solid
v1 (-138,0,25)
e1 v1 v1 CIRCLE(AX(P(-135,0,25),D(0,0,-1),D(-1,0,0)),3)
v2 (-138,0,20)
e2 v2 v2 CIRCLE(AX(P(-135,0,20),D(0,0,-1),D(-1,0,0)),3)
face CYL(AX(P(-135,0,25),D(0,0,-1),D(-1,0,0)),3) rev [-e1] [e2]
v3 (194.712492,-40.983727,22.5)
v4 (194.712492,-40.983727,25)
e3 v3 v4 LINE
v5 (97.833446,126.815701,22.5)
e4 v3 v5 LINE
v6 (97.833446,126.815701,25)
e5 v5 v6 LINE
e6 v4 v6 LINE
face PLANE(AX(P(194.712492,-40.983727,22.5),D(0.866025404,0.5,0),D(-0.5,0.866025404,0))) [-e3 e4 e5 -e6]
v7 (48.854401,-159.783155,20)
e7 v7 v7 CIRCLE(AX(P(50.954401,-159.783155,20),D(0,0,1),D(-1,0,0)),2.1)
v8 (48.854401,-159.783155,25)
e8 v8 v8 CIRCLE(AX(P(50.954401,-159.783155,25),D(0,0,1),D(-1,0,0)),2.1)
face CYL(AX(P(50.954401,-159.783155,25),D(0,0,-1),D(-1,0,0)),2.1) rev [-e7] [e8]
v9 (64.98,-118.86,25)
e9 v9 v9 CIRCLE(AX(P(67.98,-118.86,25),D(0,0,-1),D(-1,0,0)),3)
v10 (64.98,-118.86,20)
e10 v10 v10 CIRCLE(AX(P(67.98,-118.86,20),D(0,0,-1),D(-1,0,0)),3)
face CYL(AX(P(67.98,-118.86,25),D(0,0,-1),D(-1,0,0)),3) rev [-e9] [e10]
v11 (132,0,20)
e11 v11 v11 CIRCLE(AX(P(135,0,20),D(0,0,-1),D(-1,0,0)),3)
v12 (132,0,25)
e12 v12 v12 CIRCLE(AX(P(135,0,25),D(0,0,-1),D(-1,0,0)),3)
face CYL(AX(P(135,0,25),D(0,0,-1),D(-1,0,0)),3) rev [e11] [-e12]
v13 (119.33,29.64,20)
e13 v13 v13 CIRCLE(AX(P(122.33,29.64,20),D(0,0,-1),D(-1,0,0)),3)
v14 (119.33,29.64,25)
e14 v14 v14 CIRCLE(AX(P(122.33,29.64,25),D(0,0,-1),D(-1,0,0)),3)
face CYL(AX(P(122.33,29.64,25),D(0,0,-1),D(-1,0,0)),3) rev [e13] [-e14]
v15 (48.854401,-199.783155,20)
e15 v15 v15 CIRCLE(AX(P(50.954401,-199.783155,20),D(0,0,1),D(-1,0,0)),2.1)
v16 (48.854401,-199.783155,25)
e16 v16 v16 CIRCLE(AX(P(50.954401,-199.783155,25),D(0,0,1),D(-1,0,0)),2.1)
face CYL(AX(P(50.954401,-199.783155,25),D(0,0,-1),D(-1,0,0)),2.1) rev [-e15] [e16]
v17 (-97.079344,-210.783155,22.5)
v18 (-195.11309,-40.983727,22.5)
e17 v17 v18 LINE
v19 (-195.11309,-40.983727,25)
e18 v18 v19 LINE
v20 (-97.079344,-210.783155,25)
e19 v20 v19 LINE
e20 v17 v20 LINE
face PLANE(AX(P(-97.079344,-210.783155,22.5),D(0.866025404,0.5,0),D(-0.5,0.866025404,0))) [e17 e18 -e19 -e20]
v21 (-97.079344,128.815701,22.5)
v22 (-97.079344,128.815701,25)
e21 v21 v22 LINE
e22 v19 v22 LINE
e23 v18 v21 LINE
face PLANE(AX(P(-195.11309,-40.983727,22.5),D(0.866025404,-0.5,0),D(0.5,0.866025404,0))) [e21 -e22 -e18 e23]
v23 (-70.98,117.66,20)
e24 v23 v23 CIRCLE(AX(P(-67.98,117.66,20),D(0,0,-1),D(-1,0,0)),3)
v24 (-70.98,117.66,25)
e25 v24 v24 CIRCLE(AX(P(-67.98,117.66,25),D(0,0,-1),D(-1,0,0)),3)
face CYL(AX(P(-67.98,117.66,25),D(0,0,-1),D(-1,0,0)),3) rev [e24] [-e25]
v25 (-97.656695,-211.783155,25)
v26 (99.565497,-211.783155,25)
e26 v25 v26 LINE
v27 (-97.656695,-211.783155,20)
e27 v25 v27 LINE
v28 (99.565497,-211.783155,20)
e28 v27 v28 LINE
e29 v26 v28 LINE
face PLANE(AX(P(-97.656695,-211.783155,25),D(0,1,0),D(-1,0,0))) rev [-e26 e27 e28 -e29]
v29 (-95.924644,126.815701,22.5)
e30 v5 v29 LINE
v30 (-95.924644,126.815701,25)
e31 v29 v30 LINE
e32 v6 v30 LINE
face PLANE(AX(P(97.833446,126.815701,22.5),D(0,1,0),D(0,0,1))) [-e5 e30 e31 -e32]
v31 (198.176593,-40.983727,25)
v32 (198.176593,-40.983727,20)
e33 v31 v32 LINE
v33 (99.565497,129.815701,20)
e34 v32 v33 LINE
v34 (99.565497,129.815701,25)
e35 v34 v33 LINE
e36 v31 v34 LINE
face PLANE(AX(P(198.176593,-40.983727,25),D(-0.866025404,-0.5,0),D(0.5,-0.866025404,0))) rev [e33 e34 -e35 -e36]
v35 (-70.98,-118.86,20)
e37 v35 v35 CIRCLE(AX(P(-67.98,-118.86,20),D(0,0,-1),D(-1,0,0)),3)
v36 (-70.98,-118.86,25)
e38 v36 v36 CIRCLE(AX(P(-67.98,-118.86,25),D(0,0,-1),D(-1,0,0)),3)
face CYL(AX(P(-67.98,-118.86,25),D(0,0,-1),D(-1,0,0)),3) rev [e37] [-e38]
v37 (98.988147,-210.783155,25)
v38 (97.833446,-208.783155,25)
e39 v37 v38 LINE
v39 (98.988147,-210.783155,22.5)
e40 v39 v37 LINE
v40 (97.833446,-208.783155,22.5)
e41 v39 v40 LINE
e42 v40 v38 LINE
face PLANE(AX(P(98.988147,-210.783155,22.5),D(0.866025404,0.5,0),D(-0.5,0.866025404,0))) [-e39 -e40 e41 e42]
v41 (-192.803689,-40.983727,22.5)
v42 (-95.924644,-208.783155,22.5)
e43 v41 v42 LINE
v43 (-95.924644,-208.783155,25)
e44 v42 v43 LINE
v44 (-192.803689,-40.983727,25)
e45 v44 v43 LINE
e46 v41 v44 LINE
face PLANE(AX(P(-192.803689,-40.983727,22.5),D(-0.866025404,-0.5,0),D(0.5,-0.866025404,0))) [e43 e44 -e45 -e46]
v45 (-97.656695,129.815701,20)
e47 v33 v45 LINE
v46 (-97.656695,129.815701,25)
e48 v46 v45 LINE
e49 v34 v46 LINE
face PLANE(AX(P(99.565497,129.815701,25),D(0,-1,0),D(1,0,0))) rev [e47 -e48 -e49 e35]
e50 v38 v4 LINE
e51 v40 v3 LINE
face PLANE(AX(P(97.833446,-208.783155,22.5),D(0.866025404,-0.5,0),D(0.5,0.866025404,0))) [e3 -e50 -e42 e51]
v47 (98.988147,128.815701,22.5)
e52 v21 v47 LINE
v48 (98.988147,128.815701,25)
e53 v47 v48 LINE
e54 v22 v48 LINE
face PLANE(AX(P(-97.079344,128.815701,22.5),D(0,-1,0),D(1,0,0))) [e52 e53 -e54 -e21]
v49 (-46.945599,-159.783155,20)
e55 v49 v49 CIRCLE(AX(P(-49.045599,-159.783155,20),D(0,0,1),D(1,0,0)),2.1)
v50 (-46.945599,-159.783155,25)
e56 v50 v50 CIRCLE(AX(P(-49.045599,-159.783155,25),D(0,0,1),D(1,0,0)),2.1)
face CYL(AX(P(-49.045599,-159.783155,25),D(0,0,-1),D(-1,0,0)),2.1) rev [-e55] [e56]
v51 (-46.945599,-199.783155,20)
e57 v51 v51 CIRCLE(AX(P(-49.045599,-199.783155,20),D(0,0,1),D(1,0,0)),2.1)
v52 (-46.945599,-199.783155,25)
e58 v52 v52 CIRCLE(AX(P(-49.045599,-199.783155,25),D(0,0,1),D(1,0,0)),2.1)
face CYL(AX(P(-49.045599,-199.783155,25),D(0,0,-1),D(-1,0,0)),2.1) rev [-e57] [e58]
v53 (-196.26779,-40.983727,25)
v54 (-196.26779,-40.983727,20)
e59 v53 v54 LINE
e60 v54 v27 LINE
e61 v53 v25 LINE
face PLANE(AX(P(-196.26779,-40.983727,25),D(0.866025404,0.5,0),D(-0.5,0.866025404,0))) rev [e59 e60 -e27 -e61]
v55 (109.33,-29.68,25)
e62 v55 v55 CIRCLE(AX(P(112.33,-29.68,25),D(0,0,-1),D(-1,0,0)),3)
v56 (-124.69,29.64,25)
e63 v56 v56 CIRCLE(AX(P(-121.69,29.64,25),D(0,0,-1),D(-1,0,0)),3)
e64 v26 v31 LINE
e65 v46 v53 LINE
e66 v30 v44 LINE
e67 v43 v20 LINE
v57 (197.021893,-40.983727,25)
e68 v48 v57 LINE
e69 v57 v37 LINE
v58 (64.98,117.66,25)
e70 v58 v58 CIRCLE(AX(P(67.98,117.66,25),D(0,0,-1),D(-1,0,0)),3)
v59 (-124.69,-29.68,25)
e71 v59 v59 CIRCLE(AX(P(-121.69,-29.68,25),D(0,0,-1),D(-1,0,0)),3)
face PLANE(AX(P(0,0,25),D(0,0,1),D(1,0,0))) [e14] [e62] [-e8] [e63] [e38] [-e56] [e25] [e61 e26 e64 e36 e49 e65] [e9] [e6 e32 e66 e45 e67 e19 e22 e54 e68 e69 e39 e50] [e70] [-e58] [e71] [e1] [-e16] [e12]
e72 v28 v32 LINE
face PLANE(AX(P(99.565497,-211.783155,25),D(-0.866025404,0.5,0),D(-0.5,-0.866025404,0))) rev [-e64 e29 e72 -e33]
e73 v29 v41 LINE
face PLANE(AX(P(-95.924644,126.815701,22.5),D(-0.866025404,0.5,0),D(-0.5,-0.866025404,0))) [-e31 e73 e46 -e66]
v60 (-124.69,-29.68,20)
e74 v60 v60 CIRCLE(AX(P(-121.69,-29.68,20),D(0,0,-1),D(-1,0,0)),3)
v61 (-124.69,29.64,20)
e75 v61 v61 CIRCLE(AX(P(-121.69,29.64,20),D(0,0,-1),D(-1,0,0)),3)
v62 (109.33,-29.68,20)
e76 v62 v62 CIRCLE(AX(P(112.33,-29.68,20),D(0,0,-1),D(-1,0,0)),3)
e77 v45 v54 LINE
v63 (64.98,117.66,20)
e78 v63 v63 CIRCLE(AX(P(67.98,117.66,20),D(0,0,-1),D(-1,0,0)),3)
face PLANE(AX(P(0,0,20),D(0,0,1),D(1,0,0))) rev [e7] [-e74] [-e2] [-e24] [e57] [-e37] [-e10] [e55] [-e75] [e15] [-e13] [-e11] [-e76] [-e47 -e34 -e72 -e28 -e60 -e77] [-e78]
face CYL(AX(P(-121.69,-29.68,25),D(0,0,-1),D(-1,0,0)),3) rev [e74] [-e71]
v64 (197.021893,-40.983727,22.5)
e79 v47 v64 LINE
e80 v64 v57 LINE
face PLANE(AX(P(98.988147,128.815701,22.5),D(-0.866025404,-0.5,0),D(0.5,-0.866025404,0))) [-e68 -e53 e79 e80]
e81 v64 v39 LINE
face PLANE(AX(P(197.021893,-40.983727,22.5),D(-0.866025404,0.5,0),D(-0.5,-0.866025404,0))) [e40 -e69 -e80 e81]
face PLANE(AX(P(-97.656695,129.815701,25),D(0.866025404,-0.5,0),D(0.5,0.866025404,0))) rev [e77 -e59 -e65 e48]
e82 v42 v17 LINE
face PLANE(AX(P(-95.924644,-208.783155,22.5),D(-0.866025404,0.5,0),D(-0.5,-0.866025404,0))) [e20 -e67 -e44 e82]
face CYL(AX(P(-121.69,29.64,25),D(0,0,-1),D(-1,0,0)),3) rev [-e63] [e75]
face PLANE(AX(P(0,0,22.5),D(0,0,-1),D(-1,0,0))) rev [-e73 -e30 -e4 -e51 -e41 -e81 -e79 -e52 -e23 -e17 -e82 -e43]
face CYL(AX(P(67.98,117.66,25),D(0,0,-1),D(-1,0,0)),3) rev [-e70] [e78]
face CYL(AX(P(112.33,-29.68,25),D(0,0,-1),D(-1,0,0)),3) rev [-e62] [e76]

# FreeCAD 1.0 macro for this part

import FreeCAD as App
import Part
import Sketcher
Q = App.Units.Quantity


def add_polygon(sketch, points):
    """Adds a closed chain of lines whose ends are joined by coincident constraints."""
    first, n = sketch.GeometryCount, len(points)
    for a, b in zip(points, points[1:] + points[:1]):
        sketch.addGeometry(Part.LineSegment(App.Vector(*a, 0), App.Vector(*b, 0)), False)
    for i in range(n):
        sketch.addConstraint(Sketcher.Constraint("Coincident", first + i, 2, first + (i + 1) % n, 1))

doc = App.newDocument("Part")
body = doc.addObject("PartDesign::Body", "Body")

sketch1 = doc.addObject("Sketcher::SketchObject", "Sketch")
body.addObject(sketch1)
sketch1.AttachmentSupport = (doc.XY_Plane, [""])
sketch1.MapMode = "FlatFace"
sketch1.AttachmentOffset = App.Placement(App.Vector(0, 0, 20), App.Rotation())
add_polygon(sketch1, [(198, -41), (100, 130), (-98, 130), (-196, -41), (-98, -212), (100, -212)])
sketch1.addConstraint(Sketcher.Constraint("Horizontal", 1))
sketch1.addConstraint(Sketcher.Constraint("Horizontal", 4))
sketch1.addConstraint(Sketcher.Constraint("Parallel", 0, 3))
sketch1.addConstraint(Sketcher.Constraint("Parallel", 2, 5))
sketch1.addConstraint(Sketcher.Constraint("Horizontal", 2, 2, 5, 2))
sketch1.addConstraint(Sketcher.Constraint("Vertical", 1, 2, 3, 2))
sketch1.addConstraint(Sketcher.Constraint("Vertical", 0, 2, 4, 2))
sketch1.addConstraint(Sketcher.Constraint("Angle", 0, Q("120 deg")))
sketch1.addConstraint(Sketcher.Constraint("DistanceX", 1, 2, 1, 1, 197.222192))
sketch1.addConstraint(Sketcher.Constraint("DistanceY", -1, 1, 0, 2, 129.815701))
sketch1.addConstraint(Sketcher.Constraint("Distance", 0, 197.222192))
sketch1.addConstraint(Sketcher.Constraint("DistanceX", 2, 2, -1, 1, 196.26779))
pad1 = doc.addObject("PartDesign::Pad", "Pad")
body.addObject(pad1)
pad1.Profile = sketch1
pad1.Length = 5

sketch2 = doc.addObject("Sketcher::SketchObject", "Sketch001")
body.addObject(sketch2)
sketch2.AttachmentSupport = (doc.XY_Plane, [""])
sketch2.MapMode = "FlatFace"
sketch2.AttachmentOffset = App.Placement(App.Vector(0, 0, 25), App.Rotation())
add_polygon(sketch2, [(-97.1, 128.8), (-195.1, -41), (-97.1, -210.8), (-95.9, -208.8), (-192.8, -41), (-95.9, 126.8), (97.8, 126.8), (194.7, -41), (97.8, -208.8), (99, -210.8), (197, -41), (99, 128.8)])
sketch2.addConstraint(Sketcher.Constraint("Horizontal", 5))
sketch2.addConstraint(Sketcher.Constraint("Horizontal", 11))
sketch2.addConstraint(Sketcher.Constraint("Parallel", 0, 2))
sketch2.addConstraint(Sketcher.Constraint("Parallel", 1, 3))
sketch2.addConstraint(Sketcher.Constraint("Parallel", 2, 4))
sketch2.addConstraint(Sketcher.Constraint("Parallel", 3, 6))
sketch2.addConstraint(Sketcher.Constraint("Parallel", 4, 7))
sketch2.addConstraint(Sketcher.Constraint("Parallel", 6, 8))
sketch2.addConstraint(Sketcher.Constraint("Parallel", 7, 9))
sketch2.addConstraint(Sketcher.Constraint("Parallel", 8, 10))
sketch2.addConstraint(Sketcher.Constraint("Horizontal", 0, 2, 3, 2))
sketch2.addConstraint(Sketcher.Constraint("Horizontal", 3, 2, 6, 2))
sketch2.addConstraint(Sketcher.Constraint("Horizontal", 2, 2, 7, 2))
sketch2.addConstraint(Sketcher.Constraint("Horizontal", 1, 2, 8, 2))
sketch2.addConstraint(Sketcher.Constraint("Horizontal", 6, 2, 9, 2))
sketch2.addConstraint(Sketcher.Constraint("Vertical", 2, 2, 4, 2))
sketch2.addConstraint(Sketcher.Constraint("Vertical", 5, 2, 7, 2))
sketch2.addConstraint(Sketcher.Constraint("Vertical", 8, 2, 10, 2))
sketch2.addConstraint(Sketcher.Constraint("Angle", 0, Q("-120 deg")))
sketch2.addConstraint(Sketcher.Constraint("DistanceY", 1, 2, 2, 2, 2.0))
sketch2.addConstraint(Sketcher.Constraint("DistanceX", 5, 1, 5, 2, 193.75809))
sketch2.addConstraint(Sketcher.Constraint("DistanceY", -1, 1, 4, 2, 126.815701))
sketch2.addConstraint(Sketcher.Constraint("Distance", 0, 196.067491))
sketch2.addConstraint(Sketcher.Constraint("DistanceX", 0, 2, -1, 1, 195.11309))
pocket1 = doc.addObject("PartDesign::Pocket", "Pocket")
body.addObject(pocket1)
pocket1.Profile = sketch2
pocket1.Length = 2.5

sketch3 = doc.addObject("Sketcher::SketchObject", "Sketch002")
body.addObject(sketch3)
sketch3.AttachmentSupport = (doc.XY_Plane, [""])
sketch3.MapMode = "FlatFace"
sketch3.AttachmentOffset = App.Placement(App.Vector(0, 0, 20), App.Rotation())
sketch3.addGeometry(Part.Circle(App.Vector(68, -118.9, 0), App.Vector(0, 0, 1), 3), False)
sketch3.addGeometry(Part.Circle(App.Vector(68, 117.7, 0), App.Vector(0, 0, 1), 3), False)
sketch3.addGeometry(Part.Circle(App.Vector(-68, 117.7, 0), App.Vector(0, 0, 1), 3), False)
sketch3.addGeometry(Part.Circle(App.Vector(112.3, -29.7, 0), App.Vector(0, 0, 1), 3), False)
sketch3.addGeometry(Part.Circle(App.Vector(-121.7, -29.7, 0), App.Vector(0, 0, 1), 3), False)
sketch3.addGeometry(Part.Circle(App.Vector(135, 0, 0), App.Vector(0, 0, 1), 3), False)
sketch3.addGeometry(Part.Circle(App.Vector(-135, 0, 0), App.Vector(0, 0, 1), 3), False)
sketch3.addGeometry(Part.Circle(App.Vector(122.3, 29.6, 0), App.Vector(0, 0, 1), 3), False)
sketch3.addGeometry(Part.Circle(App.Vector(-121.7, 29.6, 0), App.Vector(0, 0, 1), 3), False)
sketch3.addGeometry(Part.Circle(App.Vector(-68, -118.9, 0), App.Vector(0, 0, 1), 3), False)
sketch3.addConstraint(Sketcher.Constraint("Equal", 0, 1))
sketch3.addConstraint(Sketcher.Constraint("Equal", 1, 2))
sketch3.addConstraint(Sketcher.Constraint("Equal", 2, 3))
sketch3.addConstraint(Sketcher.Constraint("Equal", 3, 4))
sketch3.addConstraint(Sketcher.Constraint("Equal", 4, 5))
sketch3.addConstraint(Sketcher.Constraint("Equal", 5, 6))
sketch3.addConstraint(Sketcher.Constraint("Equal", 6, 7))
sketch3.addConstraint(Sketcher.Constraint("Equal", 7, 8))
sketch3.addConstraint(Sketcher.Constraint("Equal", 8, 9))
sketch3.addConstraint(Sketcher.Constraint("Symmetric", 5, 3, 6, 3, -1, 1))
sketch3.addConstraint(Sketcher.Constraint("Symmetric", 1, 3, 2, 3, -2))
sketch3.addConstraint(Sketcher.Constraint("Symmetric", 0, 3, 9, 3, -2))
sketch3.addConstraint(Sketcher.Constraint("PointOnObject", 5, 3, -1))
sketch3.addConstraint(Sketcher.Constraint("Horizontal", 3, 3, 4, 3))
sketch3.addConstraint(Sketcher.Constraint("Horizontal", 7, 3, 8, 3))
sketch3.addConstraint(Sketcher.Constraint("Vertical", 0, 3, 1, 3))
sketch3.addConstraint(Sketcher.Constraint("Vertical", 4, 3, 8, 3))
sketch3.addConstraint(Sketcher.Constraint("Diameter", 0, 6.0))
sketch3.addConstraint(Sketcher.Constraint("DistanceX", -1, 1, 5, 3, 135.0))
sketch3.addConstraint(Sketcher.Constraint("DistanceX", 3, 3, 7, 3, 10.0))
sketch3.addConstraint(Sketcher.Constraint("DistanceY", 0, 3, 7, 3, 148.5))
sketch3.addConstraint(Sketcher.Constraint("DistanceX", -1, 1, 0, 3, 67.98))
sketch3.addConstraint(Sketcher.Constraint("DistanceY", 0, 3, -1, 1, 118.86))
sketch3.addConstraint(Sketcher.Constraint("DistanceY", -1, 1, 1, 3, 117.66))
sketch3.addConstraint(Sketcher.Constraint("DistanceX", -1, 1, 3, 3, 112.33))
sketch3.addConstraint(Sketcher.Constraint("DistanceY", 3, 3, -1, 1, 29.68))
sketch3.addConstraint(Sketcher.Constraint("DistanceX", 4, 3, -1, 1, 121.69))
pocket2 = doc.addObject("PartDesign::Pocket", "Pocket001")
body.addObject(pocket2)
pocket2.Profile = sketch3
pocket2.Length = 5
pocket2.Reversed = True

sketch4 = doc.addObject("Sketcher::SketchObject", "Sketch003")
body.addObject(sketch4)
sketch4.AttachmentSupport = (doc.XY_Plane, [""])
sketch4.MapMode = "FlatFace"
sketch4.AttachmentOffset = App.Placement(App.Vector(0, 0, 20), App.Rotation())
sketch4.addGeometry(Part.Circle(App.Vector(-49, -199.8, 0), App.Vector(0, 0, 1), 2.1), False)
sketch4.addGeometry(Part.Circle(App.Vector(51, -199.8, 0), App.Vector(0, 0, 1), 2.1), False)
sketch4.addGeometry(Part.Circle(App.Vector(-49, -159.8, 0), App.Vector(0, 0, 1), 2.1), False)
sketch4.addGeometry(Part.Circle(App.Vector(51, -159.8, 0), App.Vector(0, 0, 1), 2.1), False)
sketch4.addConstraint(Sketcher.Constraint("Equal", 0, 1))
sketch4.addConstraint(Sketcher.Constraint("Equal", 1, 2))
sketch4.addConstraint(Sketcher.Constraint("Equal", 2, 3))
sketch4.addConstraint(Sketcher.Constraint("Horizontal", 0, 3, 1, 3))
sketch4.addConstraint(Sketcher.Constraint("Horizontal", 2, 3, 3, 3))
sketch4.addConstraint(Sketcher.Constraint("Vertical", 0, 3, 2, 3))
sketch4.addConstraint(Sketcher.Constraint("Vertical", 1, 3, 3, 3))
sketch4.addConstraint(Sketcher.Constraint("Diameter", 0, 4.2))
sketch4.addConstraint(Sketcher.Constraint("DistanceX", 0, 3, 1, 3, 100.0))
sketch4.addConstraint(Sketcher.Constraint("DistanceY", 0, 3, 2, 3, 40.0))
sketch4.addConstraint(Sketcher.Constraint("DistanceX", 0, 3, -1, 1, 49.045599))
sketch4.addConstraint(Sketcher.Constraint("DistanceY", 0, 3, -1, 1, 199.783155))
pocket3 = doc.addObject("PartDesign::Pocket", "Pocket002")
body.addObject(pocket3)
pocket3.Profile = sketch4
pocket3.Type = "ThroughAll"
pocket3.Reversed = True

doc.recompute()
